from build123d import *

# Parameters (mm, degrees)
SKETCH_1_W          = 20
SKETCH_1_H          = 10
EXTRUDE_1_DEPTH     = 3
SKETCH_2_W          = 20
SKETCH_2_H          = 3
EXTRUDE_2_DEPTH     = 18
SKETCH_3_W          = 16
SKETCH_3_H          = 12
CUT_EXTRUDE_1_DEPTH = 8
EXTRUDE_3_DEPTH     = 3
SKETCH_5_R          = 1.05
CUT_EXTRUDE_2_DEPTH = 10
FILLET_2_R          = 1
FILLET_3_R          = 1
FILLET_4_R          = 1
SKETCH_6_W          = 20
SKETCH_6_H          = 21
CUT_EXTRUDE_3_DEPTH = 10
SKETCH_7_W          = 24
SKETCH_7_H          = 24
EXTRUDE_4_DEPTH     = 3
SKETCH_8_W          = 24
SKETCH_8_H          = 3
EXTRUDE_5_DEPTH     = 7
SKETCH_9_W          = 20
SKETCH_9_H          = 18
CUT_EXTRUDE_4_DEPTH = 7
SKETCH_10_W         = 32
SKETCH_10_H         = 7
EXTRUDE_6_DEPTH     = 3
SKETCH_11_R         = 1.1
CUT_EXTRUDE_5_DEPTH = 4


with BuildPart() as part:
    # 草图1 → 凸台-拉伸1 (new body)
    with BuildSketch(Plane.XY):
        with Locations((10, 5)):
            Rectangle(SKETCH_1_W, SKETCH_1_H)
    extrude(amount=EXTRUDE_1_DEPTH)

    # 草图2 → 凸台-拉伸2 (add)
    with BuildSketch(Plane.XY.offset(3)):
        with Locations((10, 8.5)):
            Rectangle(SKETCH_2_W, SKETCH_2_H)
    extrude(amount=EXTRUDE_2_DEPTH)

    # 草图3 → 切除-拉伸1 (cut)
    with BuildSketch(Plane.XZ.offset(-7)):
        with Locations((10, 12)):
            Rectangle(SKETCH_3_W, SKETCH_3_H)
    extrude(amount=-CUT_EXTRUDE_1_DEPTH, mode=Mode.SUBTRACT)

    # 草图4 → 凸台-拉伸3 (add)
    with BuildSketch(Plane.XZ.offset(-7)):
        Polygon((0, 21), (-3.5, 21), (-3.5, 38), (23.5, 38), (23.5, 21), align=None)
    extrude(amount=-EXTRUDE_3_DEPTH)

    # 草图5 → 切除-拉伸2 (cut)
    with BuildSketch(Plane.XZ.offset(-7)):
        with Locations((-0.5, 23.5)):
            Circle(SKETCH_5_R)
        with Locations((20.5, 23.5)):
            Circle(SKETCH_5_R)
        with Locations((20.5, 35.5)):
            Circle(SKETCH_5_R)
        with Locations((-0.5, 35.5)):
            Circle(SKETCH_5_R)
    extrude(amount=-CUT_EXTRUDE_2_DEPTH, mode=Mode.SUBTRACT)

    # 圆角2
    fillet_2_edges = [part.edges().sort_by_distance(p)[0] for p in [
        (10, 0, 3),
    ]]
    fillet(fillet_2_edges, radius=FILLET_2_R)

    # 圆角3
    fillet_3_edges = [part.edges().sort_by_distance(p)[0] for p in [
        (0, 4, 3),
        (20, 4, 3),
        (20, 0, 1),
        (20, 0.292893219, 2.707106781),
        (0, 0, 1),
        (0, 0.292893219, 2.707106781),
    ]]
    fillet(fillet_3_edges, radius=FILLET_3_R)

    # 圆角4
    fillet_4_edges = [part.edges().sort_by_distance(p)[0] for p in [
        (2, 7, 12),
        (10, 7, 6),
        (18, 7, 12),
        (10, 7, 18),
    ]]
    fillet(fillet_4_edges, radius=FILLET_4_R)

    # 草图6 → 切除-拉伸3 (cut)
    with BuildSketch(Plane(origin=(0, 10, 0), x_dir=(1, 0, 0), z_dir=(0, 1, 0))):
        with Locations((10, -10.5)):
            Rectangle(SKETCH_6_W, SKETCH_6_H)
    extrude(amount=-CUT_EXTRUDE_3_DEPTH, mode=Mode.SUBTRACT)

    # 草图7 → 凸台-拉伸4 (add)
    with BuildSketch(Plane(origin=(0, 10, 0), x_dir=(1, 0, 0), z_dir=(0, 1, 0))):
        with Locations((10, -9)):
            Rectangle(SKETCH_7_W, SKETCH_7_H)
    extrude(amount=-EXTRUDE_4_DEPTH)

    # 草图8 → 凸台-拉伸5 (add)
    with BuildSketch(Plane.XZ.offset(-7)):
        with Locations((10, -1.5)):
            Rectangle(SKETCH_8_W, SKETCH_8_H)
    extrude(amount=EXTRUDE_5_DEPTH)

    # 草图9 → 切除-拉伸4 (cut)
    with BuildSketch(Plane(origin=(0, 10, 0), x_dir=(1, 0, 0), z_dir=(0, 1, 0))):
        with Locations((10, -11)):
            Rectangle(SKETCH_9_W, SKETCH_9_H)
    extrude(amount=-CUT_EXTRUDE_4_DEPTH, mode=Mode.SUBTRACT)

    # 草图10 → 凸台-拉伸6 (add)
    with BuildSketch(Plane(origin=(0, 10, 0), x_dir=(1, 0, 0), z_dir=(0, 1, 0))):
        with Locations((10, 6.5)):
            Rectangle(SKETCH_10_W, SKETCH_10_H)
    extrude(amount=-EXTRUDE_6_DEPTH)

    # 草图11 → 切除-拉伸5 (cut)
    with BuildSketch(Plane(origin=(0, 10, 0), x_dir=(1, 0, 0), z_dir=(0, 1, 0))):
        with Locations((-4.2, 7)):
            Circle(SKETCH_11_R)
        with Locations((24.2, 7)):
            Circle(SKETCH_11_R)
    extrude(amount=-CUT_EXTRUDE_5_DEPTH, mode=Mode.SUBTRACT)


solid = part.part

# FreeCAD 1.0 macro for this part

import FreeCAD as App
import Part
import Sketcher


def edges_at(feature, points):
    """Names of the edges that pass closest to the given points."""
    edges = feature.Shape.Edges
    near = lambda p: min(range(len(edges)), key=lambda i: edges[i].distToShape(Part.Vertex(*p))[0])
    return sorted({f"Edge{near(p) + 1}" for p in points})

doc = App.newDocument("Part")
body = doc.addObject("PartDesign::Body", "Body")

# Sketch on XY plane
sketch1 = doc.addObject("Sketcher::SketchObject", "Sketch")
body.addObject(sketch1)
sketch1.AttachmentSupport = (doc.XY_Plane, [""])
sketch1.MapMode = "FlatFace"
sketch1.addGeometry([
    Part.LineSegment(App.Vector(0, 10, 0), App.Vector(0, 0, 0)),
    Part.LineSegment(App.Vector(0, 0, 0), App.Vector(20, 0, 0)),
    Part.LineSegment(App.Vector(20, 0, 0), App.Vector(20, 10, 0)),
    Part.LineSegment(App.Vector(20, 10, 0), App.Vector(0, 10, 0)),
], False)
sketch1.addConstraint([
    Sketcher.Constraint("Coincident", 0, 2, 1, 1),
    Sketcher.Constraint("Coincident", 1, 2, 2, 1),
    Sketcher.Constraint("Coincident", 2, 2, 3, 1),
    Sketcher.Constraint("Coincident", 3, 2, 0, 1),
    Sketcher.Constraint("Vertical", 0),
    Sketcher.Constraint("Horizontal", 1),
    Sketcher.Constraint("Vertical", 2),
    Sketcher.Constraint("Horizontal", 3),
    Sketcher.Constraint("Coincident", 0, 2, -1, 1),
    Sketcher.Constraint("DistanceX", 1, 1, 1, 2, 20.0),
    Sketcher.Constraint("DistanceY", 0, 2, 0, 1, 10.0),
])
pad1 = doc.addObject("PartDesign::Pad", "Pad")
body.addObject(pad1)
pad1.Profile = sketch1
pad1.Length = 3

# Sketch on XY plane
sketch2 = doc.addObject("Sketcher::SketchObject", "Sketch001")
body.addObject(sketch2)
sketch2.AttachmentSupport = (doc.XY_Plane, [""])
sketch2.MapMode = "FlatFace"
sketch2.AttachmentOffset = App.Placement(App.Vector(0, 0, 3), App.Rotation())
sketch2.addGeometry([
    Part.LineSegment(App.Vector(0, 10, 0), App.Vector(0, 7, 0)),
    Part.LineSegment(App.Vector(0, 7, 0), App.Vector(20, 7, 0)),
    Part.LineSegment(App.Vector(20, 7, 0), App.Vector(20, 10, 0)),
    Part.LineSegment(App.Vector(20, 10, 0), App.Vector(0, 10, 0)),
], False)
sketch2.addConstraint([
    Sketcher.Constraint("Coincident", 0, 2, 1, 1),
    Sketcher.Constraint("Coincident", 1, 2, 2, 1),
    Sketcher.Constraint("Coincident", 2, 2, 3, 1),
    Sketcher.Constraint("Coincident", 3, 2, 0, 1),
    Sketcher.Constraint("Vertical", 0),
    Sketcher.Constraint("Horizontal", 1),
    Sketcher.Constraint("Vertical", 2),
    Sketcher.Constraint("Horizontal", 3),
    Sketcher.Constraint("PointOnObject", 0, 2, -2),
    Sketcher.Constraint("DistanceX", 1, 1, 1, 2, 20.0),
    Sketcher.Constraint("DistanceY", 0, 2, 0, 1, 3.0),
    Sketcher.Constraint("DistanceY", -1, 1, 0, 2, 7.0),
])
pad2 = doc.addObject("PartDesign::Pad", "Pad001")
body.addObject(pad2)
pad2.Profile = sketch2
pad2.Length = 18

# Sketch on XZ plane
sketch3 = doc.addObject("Sketcher::SketchObject", "Sketch002")
body.addObject(sketch3)
sketch3.AttachmentSupport = (doc.XZ_Plane, [""])
sketch3.MapMode = "FlatFace"
sketch3.AttachmentOffset = App.Placement(App.Vector(0, 0, -7), App.Rotation())
sketch3.addGeometry([
    Part.LineSegment(App.Vector(2, 18, 0), App.Vector(2, 6, 0)),
    Part.LineSegment(App.Vector(2, 6, 0), App.Vector(18, 6, 0)),
    Part.LineSegment(App.Vector(18, 6, 0), App.Vector(18, 18, 0)),
    Part.LineSegment(App.Vector(18, 18, 0), App.Vector(2, 18, 0)),
], False)
sketch3.addConstraint([
    Sketcher.Constraint("Coincident", 0, 2, 1, 1),
    Sketcher.Constraint("Coincident", 1, 2, 2, 1),
    Sketcher.Constraint("Coincident", 2, 2, 3, 1),
    Sketcher.Constraint("Coincident", 3, 2, 0, 1),
    Sketcher.Constraint("Vertical", 0),
    Sketcher.Constraint("Horizontal", 1),
    Sketcher.Constraint("Vertical", 2),
    Sketcher.Constraint("Horizontal", 3),
    Sketcher.Constraint("DistanceX", 1, 1, 1, 2, 16.0),
    Sketcher.Constraint("DistanceY", 0, 2, 0, 1, 12.0),
    Sketcher.Constraint("DistanceX", -1, 1, 0, 2, 2.0),
    Sketcher.Constraint("DistanceY", -1, 1, 0, 2, 6.0),
])
pocket1 = doc.addObject("PartDesign::Pocket", "Pocket")
body.addObject(pocket1)
pocket1.Profile = sketch3
pocket1.Length = 8

# Sketch on XZ plane
sketch4 = doc.addObject("Sketcher::SketchObject", "Sketch003")
body.addObject(sketch4)
sketch4.AttachmentSupport = (doc.XZ_Plane, [""])
sketch4.MapMode = "FlatFace"
sketch4.AttachmentOffset = App.Placement(App.Vector(0, 0, -7), App.Rotation())
sketch4.addGeometry([
    Part.LineSegment(App.Vector(-4, 21, 0), App.Vector(24, 21, 0)),
    Part.LineSegment(App.Vector(24, 21, 0), App.Vector(24, 38, 0)),
    Part.LineSegment(App.Vector(24, 38, 0), App.Vector(-4, 38, 0)),
    Part.LineSegment(App.Vector(-4, 38, 0), App.Vector(-4, 21, 0)),
], False)
sketch4.addConstraint([
    Sketcher.Constraint("Coincident", 0, 2, 1, 1),
    Sketcher.Constraint("Coincident", 1, 2, 2, 1),
    Sketcher.Constraint("Coincident", 2, 2, 3, 1),
    Sketcher.Constraint("Coincident", 3, 2, 0, 1),
    Sketcher.Constraint("Horizontal", 0),
    Sketcher.Constraint("Vertical", 1),
    Sketcher.Constraint("Horizontal", 2),
    Sketcher.Constraint("Vertical", 3),
    Sketcher.Constraint("DistanceX", 0, 1, 0, 2, 27.0),
    Sketcher.Constraint("DistanceY", 1, 1, 1, 2, 17.0),
    Sketcher.Constraint("DistanceY", -1, 1, 0, 2, 21.0),
    Sketcher.Constraint("DistanceX", -1, 1, 0, 2, 23.5),
])
pad3 = doc.addObject("PartDesign::Pad", "Pad002")
body.addObject(pad3)
pad3.Profile = sketch4
pad3.Length = 3
pad3.Reversed = True

# Sketch on XZ plane
sketch5 = doc.addObject("Sketcher::SketchObject", "Sketch004")
body.addObject(sketch5)
sketch5.AttachmentSupport = (doc.XZ_Plane, [""])
sketch5.MapMode = "FlatFace"
sketch5.AttachmentOffset = App.Placement(App.Vector(0, 0, -7), App.Rotation())
sketch5.addGeometry([
    Part.Circle(App.Vector(-0.5, 23.5, 0), App.Vector(0, 0, 1), 1.1),
    Part.Circle(App.Vector(20.5, 23.5, 0), App.Vector(0, 0, 1), 1.1),
    Part.Circle(App.Vector(20.5, 35.5, 0), App.Vector(0, 0, 1), 1.1),
    Part.Circle(App.Vector(-0.5, 35.5, 0), App.Vector(0, 0, 1), 1.1),
], False)
sketch5.addConstraint([
    Sketcher.Constraint("Equal", 0, 1),
    Sketcher.Constraint("Equal", 1, 2),
    Sketcher.Constraint("Equal", 2, 3),
    Sketcher.Constraint("Horizontal", 0, 3, 1, 3),
    Sketcher.Constraint("Horizontal", 2, 3, 3, 3),
    Sketcher.Constraint("Vertical", 1, 3, 2, 3),
    Sketcher.Constraint("Vertical", 0, 3, 3, 3),
    Sketcher.Constraint("Diameter", 0, 2.1),
    Sketcher.Constraint("DistanceX", 0, 3, 1, 3, 21.0),
    Sketcher.Constraint("DistanceY", 1, 3, 2, 3, 12.0),
    Sketcher.Constraint("DistanceX", 0, 3, -1, 1, 0.5),
    Sketcher.Constraint("DistanceY", -1, 1, 0, 3, 23.5),
])
pocket2 = doc.addObject("PartDesign::Pocket", "Pocket001")
body.addObject(pocket2)
pocket2.Profile = sketch5
pocket2.Length = 10
doc.recompute()

fillet = doc.addObject("PartDesign::Fillet", "Fillet")
body.addObject(fillet)
fillet.Base = (pocket2, edges_at(pocket2, [(10, 0, 3)]))
fillet.Radius = 1
doc.recompute()

fillet2 = doc.addObject("PartDesign::Fillet", "Fillet001")
body.addObject(fillet2)
fillet2.Base = (fillet, edges_at(fillet, [
    (0, 4, 3),
    (20, 4, 3),
    (20, 0, 1),
    (20, 0.293, 2.707),
    (0, 0, 1),
    (0, 0.293, 2.707),
]))
fillet2.Radius = 1
doc.recompute()

fillet3 = doc.addObject("PartDesign::Fillet", "Fillet002")
body.addObject(fillet3)
fillet3.Base = (fillet2, edges_at(fillet2, [
    (2, 7, 12),
    (10, 7, 6),
    (18, 7, 12),
    (10, 7, 18),
]))
fillet3.Radius = 1

# Sketch on XZ plane
sketch6 = doc.addObject("Sketcher::SketchObject", "Sketch005")
body.addObject(sketch6)
sketch6.AttachmentSupport = (doc.XZ_Plane, [""])
sketch6.MapMode = "FlatFace"
sketch6.AttachmentOffset = App.Placement(App.Vector(0, 0, -10), App.Rotation())
sketch6.addGeometry([
    Part.LineSegment(App.Vector(0, 0, 0), App.Vector(0, 21, 0)),
    Part.LineSegment(App.Vector(0, 21, 0), App.Vector(20, 21, 0)),
    Part.LineSegment(App.Vector(20, 21, 0), App.Vector(20, 0, 0)),
    Part.LineSegment(App.Vector(20, 0, 0), App.Vector(0, 0, 0)),
], False)
sketch6.addConstraint([
    Sketcher.Constraint("Coincident", 0, 2, 1, 1),
    Sketcher.Constraint("Coincident", 1, 2, 2, 1),
    Sketcher.Constraint("Coincident", 2, 2, 3, 1),
    Sketcher.Constraint("Coincident", 3, 2, 0, 1),
    Sketcher.Constraint("Vertical", 0),
    Sketcher.Constraint("Horizontal", 1),
    Sketcher.Constraint("Vertical", 2),
    Sketcher.Constraint("Horizontal", 3),
    Sketcher.Constraint("Coincident", 3, 2, -1, 1),
    Sketcher.Constraint("DistanceX", 1, 1, 1, 2, 20.0),
    Sketcher.Constraint("DistanceY", 0, 1, 0, 2, 21.0),
])
pocket3 = doc.addObject("PartDesign::Pocket", "Pocket002")
body.addObject(pocket3)
pocket3.Profile = sketch6
pocket3.Length = 10
pocket3.Reversed = True

# Sketch on XZ plane
sketch7 = doc.addObject("Sketcher::SketchObject", "Sketch006")
body.addObject(sketch7)
sketch7.AttachmentSupport = (doc.XZ_Plane, [""])
sketch7.MapMode = "FlatFace"
sketch7.AttachmentOffset = App.Placement(App.Vector(0, 0, -10), App.Rotation())
sketch7.addGeometry([
    Part.LineSegment(App.Vector(-2, -3, 0), App.Vector(-2, 21, 0)),
    Part.LineSegment(App.Vector(-2, 21, 0), App.Vector(22, 21, 0)),
    Part.LineSegment(App.Vector(22, 21, 0), App.Vector(22, -3, 0)),
    Part.LineSegment(App.Vector(22, -3, 0), App.Vector(-2, -3, 0)),
], False)
sketch7.addConstraint([
    Sketcher.Constraint("Coincident", 0, 2, 1, 1),
    Sketcher.Constraint("Coincident", 1, 2, 2, 1),
    Sketcher.Constraint("Coincident", 2, 2, 3, 1),
    Sketcher.Constraint("Coincident", 3, 2, 0, 1),
    Sketcher.Constraint("Vertical", 0),
    Sketcher.Constraint("Horizontal", 1),
    Sketcher.Constraint("Vertical", 2),
    Sketcher.Constraint("Horizontal", 3),
    Sketcher.Constraint("Equal", 3, 0),
    Sketcher.Constraint("DistanceX", 1, 1, 1, 2, 24.0),
    Sketcher.Constraint("DistanceX", 0, 2, -1, 1, 2.0),
    Sketcher.Constraint("DistanceY", -1, 1, 0, 2, 21.0),
])
pad4 = doc.addObject("PartDesign::Pad", "Pad003")
body.addObject(pad4)
pad4.Profile = sketch7
pad4.Length = 3

# Sketch on XZ plane
sketch8 = doc.addObject("Sketcher::SketchObject", "Sketch007")
body.addObject(sketch8)
sketch8.AttachmentSupport = (doc.XZ_Plane, [""])
sketch8.MapMode = "FlatFace"
sketch8.AttachmentOffset = App.Placement(App.Vector(0, 0, -7), App.Rotation())
sketch8.addGeometry([
    Part.LineSegment(App.Vector(-2, 0, 0), App.Vector(-2, -3, 0)),
    Part.LineSegment(App.Vector(-2, -3, 0), App.Vector(22, -3, 0)),
    Part.LineSegment(App.Vector(22, -3, 0), App.Vector(22, 0, 0)),
    Part.LineSegment(App.Vector(22, 0, 0), App.Vector(-2, 0, 0)),
], False)
sketch8.addConstraint([
    Sketcher.Constraint("Coincident", 0, 2, 1, 1),
    Sketcher.Constraint("Coincident", 1, 2, 2, 1),
    Sketcher.Constraint("Coincident", 2, 2, 3, 1),
    Sketcher.Constraint("Coincident", 3, 2, 0, 1),
    Sketcher.Constraint("Vertical", 0),
    Sketcher.Constraint("Horizontal", 1),
    Sketcher.Constraint("Vertical", 2),
    Sketcher.Constraint("Horizontal", 3),
    Sketcher.Constraint("PointOnObject", 2, 2, -1),
    Sketcher.Constraint("DistanceX", 1, 1, 1, 2, 24.0),
    Sketcher.Constraint("DistanceY", 0, 2, 0, 1, 3.0),
    Sketcher.Constraint("DistanceX", 0, 2, -1, 1, 2.0),
])
pad5 = doc.addObject("PartDesign::Pad", "Pad004")
body.addObject(pad5)
pad5.Profile = sketch8
pad5.Length = 7

# Sketch on XZ plane
sketch9 = doc.addObject("Sketcher::SketchObject", "Sketch008")
body.addObject(sketch9)
sketch9.AttachmentSupport = (doc.XZ_Plane, [""])
sketch9.MapMode = "FlatFace"
sketch9.AttachmentOffset = App.Placement(App.Vector(0, 0, -10), App.Rotation())
sketch9.addGeometry([
    Part.LineSegment(App.Vector(0, 2, 0), App.Vector(0, 20, 0)),
    Part.LineSegment(App.Vector(0, 20, 0), App.Vector(20, 20, 0)),
    Part.LineSegment(App.Vector(20, 20, 0), App.Vector(20, 2, 0)),
    Part.LineSegment(App.Vector(20, 2, 0), App.Vector(0, 2, 0)),
], False)
sketch9.addConstraint([
    Sketcher.Constraint("Coincident", 0, 2, 1, 1),
    Sketcher.Constraint("Coincident", 1, 2, 2, 1),
    Sketcher.Constraint("Coincident", 2, 2, 3, 1),
    Sketcher.Constraint("Coincident", 3, 2, 0, 1),
    Sketcher.Constraint("Vertical", 0),
    Sketcher.Constraint("Horizontal", 1),
    Sketcher.Constraint("Vertical", 2),
    Sketcher.Constraint("Horizontal", 3),
    Sketcher.Constraint("PointOnObject", 0, 2, -2),
    Sketcher.Constraint("DistanceX", 1, 1, 1, 2, 20.0),
    Sketcher.Constraint("DistanceY", 0, 1, 0, 2, 18.0),
    Sketcher.Constraint("DistanceY", -1, 1, 0, 2, 20.0),
])
pocket4 = doc.addObject("PartDesign::Pocket", "Pocket003")
body.addObject(pocket4)
pocket4.Profile = sketch9
pocket4.Length = 7
pocket4.Reversed = True

# Sketch on XZ plane
sketch10 = doc.addObject("Sketcher::SketchObject", "Sketch009")
body.addObject(sketch10)
sketch10.AttachmentSupport = (doc.XZ_Plane, [""])
sketch10.MapMode = "FlatFace"
sketch10.AttachmentOffset = App.Placement(App.Vector(0, 0, -10), App.Rotation())
sketch10.addGeometry([
    Part.LineSegment(App.Vector(-6, -10, 0), App.Vector(-6, -3, 0)),
    Part.LineSegment(App.Vector(-6, -3, 0), App.Vector(26, -3, 0)),
    Part.LineSegment(App.Vector(26, -3, 0), App.Vector(26, -10, 0)),
    Part.LineSegment(App.Vector(26, -10, 0), App.Vector(-6, -10, 0)),
], False)
sketch10.addConstraint([
    Sketcher.Constraint("Coincident", 0, 2, 1, 1),
    Sketcher.Constraint("Coincident", 1, 2, 2, 1),
    Sketcher.Constraint("Coincident", 2, 2, 3, 1),
    Sketcher.Constraint("Coincident", 3, 2, 0, 1),
    Sketcher.Constraint("Vertical", 0),
    Sketcher.Constraint("Horizontal", 1),
    Sketcher.Constraint("Vertical", 2),
    Sketcher.Constraint("Horizontal", 3),
    Sketcher.Constraint("DistanceX", 1, 1, 1, 2, 32.0),
    Sketcher.Constraint("DistanceY", 0, 1, 0, 2, 7.0),
    Sketcher.Constraint("DistanceX", 0, 2, -1, 1, 6.0),
    Sketcher.Constraint("DistanceY", 0, 2, -1, 1, 3.0),
])
pad6 = doc.addObject("PartDesign::Pad", "Pad005")
body.addObject(pad6)
pad6.Profile = sketch10
pad6.Length = 3

# Sketch on XZ plane
sketch11 = doc.addObject("Sketcher::SketchObject", "Sketch010")
body.addObject(sketch11)
sketch11.AttachmentSupport = (doc.XZ_Plane, [""])
sketch11.MapMode = "FlatFace"
sketch11.AttachmentOffset = App.Placement(App.Vector(0, 0, -10), App.Rotation())
sketch11.addGeometry([
    Part.Circle(App.Vector(-4.2, -7, 0), App.Vector(0, 0, 1), 1.1),
    Part.Circle(App.Vector(24.2, -7, 0), App.Vector(0, 0, 1), 1.1),
], False)
sketch11.addConstraint([
    Sketcher.Constraint("Equal", 0, 1),
    Sketcher.Constraint("Horizontal", 0, 3, 1, 3),
    Sketcher.Constraint("Diameter", 0, 2.2),
    Sketcher.Constraint("DistanceY", 0, 3, -1, 1, 7.0),
    Sketcher.Constraint("DistanceX", 0, 3, -1, 1, 4.2),
    Sketcher.Constraint("DistanceX", -1, 1, 1, 3, 24.2),
])
pocket5 = doc.addObject("PartDesign::Pocket", "Pocket004")
body.addObject(pocket5)
pocket5.Profile = sketch11
pocket5.Length = 4
pocket5.Reversed = True

doc.recompute()
